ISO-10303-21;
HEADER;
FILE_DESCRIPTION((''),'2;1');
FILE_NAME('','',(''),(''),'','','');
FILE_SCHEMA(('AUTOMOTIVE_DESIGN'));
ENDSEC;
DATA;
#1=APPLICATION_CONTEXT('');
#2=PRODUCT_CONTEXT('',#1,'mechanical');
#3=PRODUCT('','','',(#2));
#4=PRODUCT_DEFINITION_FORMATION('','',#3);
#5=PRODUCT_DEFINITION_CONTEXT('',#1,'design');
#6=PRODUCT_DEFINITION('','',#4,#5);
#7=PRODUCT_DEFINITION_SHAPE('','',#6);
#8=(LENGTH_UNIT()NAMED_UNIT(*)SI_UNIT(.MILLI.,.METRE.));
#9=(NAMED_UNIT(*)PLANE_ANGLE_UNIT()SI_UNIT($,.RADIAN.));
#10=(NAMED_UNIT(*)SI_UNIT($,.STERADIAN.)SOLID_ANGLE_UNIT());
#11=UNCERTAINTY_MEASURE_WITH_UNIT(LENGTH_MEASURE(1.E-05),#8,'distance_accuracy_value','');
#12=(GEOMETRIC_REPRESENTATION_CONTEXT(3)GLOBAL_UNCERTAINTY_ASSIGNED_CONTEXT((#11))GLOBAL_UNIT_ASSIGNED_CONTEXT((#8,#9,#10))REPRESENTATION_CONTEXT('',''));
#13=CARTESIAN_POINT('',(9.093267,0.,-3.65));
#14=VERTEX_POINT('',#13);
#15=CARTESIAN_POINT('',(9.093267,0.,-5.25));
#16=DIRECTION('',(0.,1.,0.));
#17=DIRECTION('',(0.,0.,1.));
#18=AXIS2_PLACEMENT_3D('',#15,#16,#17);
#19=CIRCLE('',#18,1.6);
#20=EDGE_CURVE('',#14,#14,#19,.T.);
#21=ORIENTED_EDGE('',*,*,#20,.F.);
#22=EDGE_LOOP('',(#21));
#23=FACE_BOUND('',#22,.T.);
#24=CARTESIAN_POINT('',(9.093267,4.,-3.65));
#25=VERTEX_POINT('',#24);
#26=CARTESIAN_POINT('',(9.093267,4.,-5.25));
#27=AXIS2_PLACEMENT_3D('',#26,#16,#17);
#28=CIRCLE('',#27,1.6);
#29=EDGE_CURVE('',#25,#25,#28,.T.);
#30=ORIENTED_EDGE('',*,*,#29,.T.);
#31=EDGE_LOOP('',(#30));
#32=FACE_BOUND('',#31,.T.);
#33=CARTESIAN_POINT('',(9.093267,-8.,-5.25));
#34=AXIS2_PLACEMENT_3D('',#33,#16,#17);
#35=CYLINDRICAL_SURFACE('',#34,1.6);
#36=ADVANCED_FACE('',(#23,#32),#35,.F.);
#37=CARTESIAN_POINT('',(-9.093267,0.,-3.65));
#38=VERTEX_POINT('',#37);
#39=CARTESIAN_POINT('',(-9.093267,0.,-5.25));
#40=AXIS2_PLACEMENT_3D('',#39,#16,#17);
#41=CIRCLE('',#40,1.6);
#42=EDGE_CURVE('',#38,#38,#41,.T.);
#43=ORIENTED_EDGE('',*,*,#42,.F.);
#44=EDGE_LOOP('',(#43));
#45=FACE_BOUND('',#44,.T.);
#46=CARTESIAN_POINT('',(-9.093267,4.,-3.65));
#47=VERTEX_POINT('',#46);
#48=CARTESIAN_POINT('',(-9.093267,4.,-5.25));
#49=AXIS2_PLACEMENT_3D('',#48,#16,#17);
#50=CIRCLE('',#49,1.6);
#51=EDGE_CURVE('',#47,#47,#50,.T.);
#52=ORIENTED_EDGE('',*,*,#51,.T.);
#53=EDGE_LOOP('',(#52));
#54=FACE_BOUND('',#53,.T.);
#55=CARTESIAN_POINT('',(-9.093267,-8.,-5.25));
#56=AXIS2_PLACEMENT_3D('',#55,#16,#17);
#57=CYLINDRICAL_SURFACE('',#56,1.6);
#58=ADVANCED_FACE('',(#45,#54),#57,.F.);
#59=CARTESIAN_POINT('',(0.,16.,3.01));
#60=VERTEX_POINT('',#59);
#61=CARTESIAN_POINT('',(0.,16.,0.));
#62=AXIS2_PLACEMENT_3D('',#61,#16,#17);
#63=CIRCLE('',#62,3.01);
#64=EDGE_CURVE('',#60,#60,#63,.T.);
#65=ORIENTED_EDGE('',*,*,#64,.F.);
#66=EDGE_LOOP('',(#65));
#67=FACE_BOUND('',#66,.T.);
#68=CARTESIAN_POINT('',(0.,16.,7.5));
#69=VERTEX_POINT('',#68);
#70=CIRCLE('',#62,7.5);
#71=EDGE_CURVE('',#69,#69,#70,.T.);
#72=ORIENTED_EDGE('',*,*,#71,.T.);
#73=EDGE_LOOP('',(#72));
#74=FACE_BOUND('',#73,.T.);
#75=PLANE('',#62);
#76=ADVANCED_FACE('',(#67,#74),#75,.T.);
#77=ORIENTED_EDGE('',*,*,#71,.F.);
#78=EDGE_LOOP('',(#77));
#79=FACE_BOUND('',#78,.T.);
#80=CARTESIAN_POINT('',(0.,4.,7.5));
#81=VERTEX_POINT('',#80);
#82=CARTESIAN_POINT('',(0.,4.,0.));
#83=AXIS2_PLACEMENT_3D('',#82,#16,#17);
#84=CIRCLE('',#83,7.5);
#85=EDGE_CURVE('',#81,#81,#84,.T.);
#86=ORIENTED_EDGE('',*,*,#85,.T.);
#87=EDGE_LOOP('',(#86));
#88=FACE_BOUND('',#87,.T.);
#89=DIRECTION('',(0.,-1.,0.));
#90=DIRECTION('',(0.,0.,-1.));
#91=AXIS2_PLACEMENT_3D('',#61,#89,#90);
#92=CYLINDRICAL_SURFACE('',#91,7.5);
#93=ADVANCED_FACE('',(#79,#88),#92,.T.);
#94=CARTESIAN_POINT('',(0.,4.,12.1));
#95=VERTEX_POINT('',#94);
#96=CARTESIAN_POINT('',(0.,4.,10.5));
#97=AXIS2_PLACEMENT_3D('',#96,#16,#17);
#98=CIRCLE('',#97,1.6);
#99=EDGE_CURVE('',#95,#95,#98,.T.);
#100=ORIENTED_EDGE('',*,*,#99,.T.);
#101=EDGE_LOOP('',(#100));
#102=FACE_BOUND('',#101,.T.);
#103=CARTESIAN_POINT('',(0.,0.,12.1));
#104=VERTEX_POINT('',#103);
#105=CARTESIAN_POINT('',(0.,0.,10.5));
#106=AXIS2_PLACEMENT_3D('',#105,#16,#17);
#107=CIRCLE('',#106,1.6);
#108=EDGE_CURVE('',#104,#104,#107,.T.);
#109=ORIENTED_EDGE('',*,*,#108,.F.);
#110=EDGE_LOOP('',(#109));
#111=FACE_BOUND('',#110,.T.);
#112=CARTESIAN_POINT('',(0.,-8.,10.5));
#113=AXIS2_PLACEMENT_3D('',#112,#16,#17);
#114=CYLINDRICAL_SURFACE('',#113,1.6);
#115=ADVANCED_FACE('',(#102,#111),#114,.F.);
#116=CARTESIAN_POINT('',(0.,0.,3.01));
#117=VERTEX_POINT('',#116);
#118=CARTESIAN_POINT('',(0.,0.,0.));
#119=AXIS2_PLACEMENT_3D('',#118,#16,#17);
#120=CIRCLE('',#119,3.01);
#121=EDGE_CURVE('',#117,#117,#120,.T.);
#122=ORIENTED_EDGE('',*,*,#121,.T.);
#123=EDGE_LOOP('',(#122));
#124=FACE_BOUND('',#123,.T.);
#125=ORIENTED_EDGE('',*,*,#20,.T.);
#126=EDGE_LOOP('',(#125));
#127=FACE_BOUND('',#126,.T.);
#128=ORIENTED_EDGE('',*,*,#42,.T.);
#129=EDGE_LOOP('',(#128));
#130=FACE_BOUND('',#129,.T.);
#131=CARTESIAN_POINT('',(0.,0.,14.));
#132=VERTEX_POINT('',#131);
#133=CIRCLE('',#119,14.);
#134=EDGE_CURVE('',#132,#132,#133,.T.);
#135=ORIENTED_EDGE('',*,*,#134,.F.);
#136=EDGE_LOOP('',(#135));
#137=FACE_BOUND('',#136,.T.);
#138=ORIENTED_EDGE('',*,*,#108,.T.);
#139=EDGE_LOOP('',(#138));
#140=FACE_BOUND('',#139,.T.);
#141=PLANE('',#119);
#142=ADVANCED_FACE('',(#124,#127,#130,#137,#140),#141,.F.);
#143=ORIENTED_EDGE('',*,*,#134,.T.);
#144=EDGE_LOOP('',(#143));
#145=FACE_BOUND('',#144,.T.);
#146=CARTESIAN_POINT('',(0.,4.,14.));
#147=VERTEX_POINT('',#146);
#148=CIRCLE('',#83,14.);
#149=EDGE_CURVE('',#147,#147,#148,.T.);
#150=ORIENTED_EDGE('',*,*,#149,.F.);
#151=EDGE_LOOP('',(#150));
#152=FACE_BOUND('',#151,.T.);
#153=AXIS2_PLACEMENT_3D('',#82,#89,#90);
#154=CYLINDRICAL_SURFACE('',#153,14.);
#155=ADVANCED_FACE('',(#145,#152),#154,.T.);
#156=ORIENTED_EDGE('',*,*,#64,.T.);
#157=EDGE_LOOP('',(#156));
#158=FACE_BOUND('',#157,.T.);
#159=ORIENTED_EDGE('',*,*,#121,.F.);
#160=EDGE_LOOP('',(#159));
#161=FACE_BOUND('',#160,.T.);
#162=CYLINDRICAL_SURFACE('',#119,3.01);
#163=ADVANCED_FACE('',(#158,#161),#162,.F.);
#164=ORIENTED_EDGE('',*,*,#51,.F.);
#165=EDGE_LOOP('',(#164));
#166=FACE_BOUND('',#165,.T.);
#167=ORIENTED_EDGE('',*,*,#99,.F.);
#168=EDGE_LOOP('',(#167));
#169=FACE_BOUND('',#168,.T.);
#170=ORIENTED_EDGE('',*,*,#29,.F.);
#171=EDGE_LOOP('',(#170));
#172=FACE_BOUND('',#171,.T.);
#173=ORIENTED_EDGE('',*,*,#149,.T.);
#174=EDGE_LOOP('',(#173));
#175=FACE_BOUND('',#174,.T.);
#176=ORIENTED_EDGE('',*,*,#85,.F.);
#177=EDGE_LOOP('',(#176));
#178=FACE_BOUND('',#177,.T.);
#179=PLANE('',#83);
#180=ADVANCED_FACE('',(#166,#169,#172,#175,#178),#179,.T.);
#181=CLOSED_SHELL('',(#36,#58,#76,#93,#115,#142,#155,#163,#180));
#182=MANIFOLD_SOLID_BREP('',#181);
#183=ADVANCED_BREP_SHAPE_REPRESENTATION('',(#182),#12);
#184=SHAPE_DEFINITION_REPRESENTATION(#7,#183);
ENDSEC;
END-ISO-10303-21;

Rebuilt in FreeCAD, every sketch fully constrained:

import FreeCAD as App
import Part
import Sketcher
from FreeCAD import Vector
Q = App.Units.Quantity

doc = App.newDocument("Part")
body = doc.addObject("PartDesign::Body", "Body")

sketch1 = body.newObject("Sketcher::SketchObject", "Sketch")
sketch1.AttachmentSupport = (doc.getObject("XZ_Plane"), [""])
sketch1.MapMode = "FlatFace"
sketch1.addGeometry(Part.Circle(Vector(0, 0, 0), Vector(0, 0, 1), 14), False)
sketch1.addConstraint([
    Sketcher.Constraint("Coincident", 0, 3, -1, 1),
    Sketcher.Constraint("Diameter", 0, Q("28 mm")),
])
pad1 = body.newObject("PartDesign::Pad", "Pad")
pad1.Profile = sketch1
pad1.Length = 4
pad1.Reversed = True

sketch2 = body.newObject("Sketcher::SketchObject", "Sketch001")
sketch2.AttachmentSupport = (doc.getObject("XZ_Plane"), [""])
sketch2.MapMode = "FlatFace"
sketch2.AttachmentOffset = App.Placement(Vector(0, 0, -4), App.Rotation())
sketch2.addGeometry(Part.Circle(Vector(0, 0, 0), Vector(0, 0, 1), 8), False)
sketch2.addConstraint([
    Sketcher.Constraint("Coincident", 0, 3, -1, 1),
    Sketcher.Constraint("Diameter", 0, Q("15 mm")),
])
pad2 = body.newObject("PartDesign::Pad", "Pad001")
pad2.Profile = sketch2
pad2.Length = 12
pad2.Reversed = True

sketch3 = body.newObject("Sketcher::SketchObject", "Sketch002")
sketch3.AttachmentSupport = (doc.getObject("XZ_Plane"), [""])
sketch3.MapMode = "FlatFace"
sketch3.AttachmentOffset = App.Placement(Vector(0, 0, -16), App.Rotation())
sketch3.addGeometry(Part.Circle(Vector(0, 0, 0), Vector(0, 0, 1), 3), False)
sketch3.addConstraint([
    Sketcher.Constraint("Coincident", 0, 3, -1, 1),
    Sketcher.Constraint("Diameter", 0, Q("6.02 mm")),
])
pocket1 = body.newObject("PartDesign::Pocket", "Pocket")
pocket1.Profile = sketch3
pocket1.Type = "ThroughAll"
pocket1.Reversed = True

sketch4 = body.newObject("Sketcher::SketchObject", "Sketch003")
sketch4.AttachmentSupport = (doc.getObject("XZ_Plane"), [""])
sketch4.MapMode = "FlatFace"
sketch4.AttachmentOffset = App.Placement(Vector(0, 0, -4), App.Rotation())
sketch4.addGeometry([
    Part.Circle(Vector(0, 10.5, 0), Vector(0, 0, 1), 1.6),
    Part.Circle(Vector(9.1, -5.2, 0), Vector(0, 0, 1), 1.6),
    Part.Circle(Vector(-9.1, -5.2, 0), Vector(0, 0, 1), 1.6),
], False)
sketch4.addConstraint([
    Sketcher.Constraint("Equal", 0, 1),
    Sketcher.Constraint("Equal", 1, 2),
    Sketcher.Constraint("Symmetric", 1, 3, 2, 3, -2),
    Sketcher.Constraint("PointOnObject", 0, 3, -2),
    Sketcher.Constraint("Diameter", 0, Q("3.2 mm")),
    Sketcher.Constraint("DistanceY", -1, 1, 0, 3, Q("10.5 mm")),
    Sketcher.Constraint("DistanceY", 1, 3, -1, 1, Q("5.25 mm")),
    Sketcher.Constraint("DistanceX", -1, 1, 1, 3, Q("9.093267 mm")),
])
pocket2 = body.newObject("PartDesign::Pocket", "Pocket001")
pocket2.Profile = sketch4
pocket2.Length = 12
pocket2.Reversed = True

doc.recompute()
